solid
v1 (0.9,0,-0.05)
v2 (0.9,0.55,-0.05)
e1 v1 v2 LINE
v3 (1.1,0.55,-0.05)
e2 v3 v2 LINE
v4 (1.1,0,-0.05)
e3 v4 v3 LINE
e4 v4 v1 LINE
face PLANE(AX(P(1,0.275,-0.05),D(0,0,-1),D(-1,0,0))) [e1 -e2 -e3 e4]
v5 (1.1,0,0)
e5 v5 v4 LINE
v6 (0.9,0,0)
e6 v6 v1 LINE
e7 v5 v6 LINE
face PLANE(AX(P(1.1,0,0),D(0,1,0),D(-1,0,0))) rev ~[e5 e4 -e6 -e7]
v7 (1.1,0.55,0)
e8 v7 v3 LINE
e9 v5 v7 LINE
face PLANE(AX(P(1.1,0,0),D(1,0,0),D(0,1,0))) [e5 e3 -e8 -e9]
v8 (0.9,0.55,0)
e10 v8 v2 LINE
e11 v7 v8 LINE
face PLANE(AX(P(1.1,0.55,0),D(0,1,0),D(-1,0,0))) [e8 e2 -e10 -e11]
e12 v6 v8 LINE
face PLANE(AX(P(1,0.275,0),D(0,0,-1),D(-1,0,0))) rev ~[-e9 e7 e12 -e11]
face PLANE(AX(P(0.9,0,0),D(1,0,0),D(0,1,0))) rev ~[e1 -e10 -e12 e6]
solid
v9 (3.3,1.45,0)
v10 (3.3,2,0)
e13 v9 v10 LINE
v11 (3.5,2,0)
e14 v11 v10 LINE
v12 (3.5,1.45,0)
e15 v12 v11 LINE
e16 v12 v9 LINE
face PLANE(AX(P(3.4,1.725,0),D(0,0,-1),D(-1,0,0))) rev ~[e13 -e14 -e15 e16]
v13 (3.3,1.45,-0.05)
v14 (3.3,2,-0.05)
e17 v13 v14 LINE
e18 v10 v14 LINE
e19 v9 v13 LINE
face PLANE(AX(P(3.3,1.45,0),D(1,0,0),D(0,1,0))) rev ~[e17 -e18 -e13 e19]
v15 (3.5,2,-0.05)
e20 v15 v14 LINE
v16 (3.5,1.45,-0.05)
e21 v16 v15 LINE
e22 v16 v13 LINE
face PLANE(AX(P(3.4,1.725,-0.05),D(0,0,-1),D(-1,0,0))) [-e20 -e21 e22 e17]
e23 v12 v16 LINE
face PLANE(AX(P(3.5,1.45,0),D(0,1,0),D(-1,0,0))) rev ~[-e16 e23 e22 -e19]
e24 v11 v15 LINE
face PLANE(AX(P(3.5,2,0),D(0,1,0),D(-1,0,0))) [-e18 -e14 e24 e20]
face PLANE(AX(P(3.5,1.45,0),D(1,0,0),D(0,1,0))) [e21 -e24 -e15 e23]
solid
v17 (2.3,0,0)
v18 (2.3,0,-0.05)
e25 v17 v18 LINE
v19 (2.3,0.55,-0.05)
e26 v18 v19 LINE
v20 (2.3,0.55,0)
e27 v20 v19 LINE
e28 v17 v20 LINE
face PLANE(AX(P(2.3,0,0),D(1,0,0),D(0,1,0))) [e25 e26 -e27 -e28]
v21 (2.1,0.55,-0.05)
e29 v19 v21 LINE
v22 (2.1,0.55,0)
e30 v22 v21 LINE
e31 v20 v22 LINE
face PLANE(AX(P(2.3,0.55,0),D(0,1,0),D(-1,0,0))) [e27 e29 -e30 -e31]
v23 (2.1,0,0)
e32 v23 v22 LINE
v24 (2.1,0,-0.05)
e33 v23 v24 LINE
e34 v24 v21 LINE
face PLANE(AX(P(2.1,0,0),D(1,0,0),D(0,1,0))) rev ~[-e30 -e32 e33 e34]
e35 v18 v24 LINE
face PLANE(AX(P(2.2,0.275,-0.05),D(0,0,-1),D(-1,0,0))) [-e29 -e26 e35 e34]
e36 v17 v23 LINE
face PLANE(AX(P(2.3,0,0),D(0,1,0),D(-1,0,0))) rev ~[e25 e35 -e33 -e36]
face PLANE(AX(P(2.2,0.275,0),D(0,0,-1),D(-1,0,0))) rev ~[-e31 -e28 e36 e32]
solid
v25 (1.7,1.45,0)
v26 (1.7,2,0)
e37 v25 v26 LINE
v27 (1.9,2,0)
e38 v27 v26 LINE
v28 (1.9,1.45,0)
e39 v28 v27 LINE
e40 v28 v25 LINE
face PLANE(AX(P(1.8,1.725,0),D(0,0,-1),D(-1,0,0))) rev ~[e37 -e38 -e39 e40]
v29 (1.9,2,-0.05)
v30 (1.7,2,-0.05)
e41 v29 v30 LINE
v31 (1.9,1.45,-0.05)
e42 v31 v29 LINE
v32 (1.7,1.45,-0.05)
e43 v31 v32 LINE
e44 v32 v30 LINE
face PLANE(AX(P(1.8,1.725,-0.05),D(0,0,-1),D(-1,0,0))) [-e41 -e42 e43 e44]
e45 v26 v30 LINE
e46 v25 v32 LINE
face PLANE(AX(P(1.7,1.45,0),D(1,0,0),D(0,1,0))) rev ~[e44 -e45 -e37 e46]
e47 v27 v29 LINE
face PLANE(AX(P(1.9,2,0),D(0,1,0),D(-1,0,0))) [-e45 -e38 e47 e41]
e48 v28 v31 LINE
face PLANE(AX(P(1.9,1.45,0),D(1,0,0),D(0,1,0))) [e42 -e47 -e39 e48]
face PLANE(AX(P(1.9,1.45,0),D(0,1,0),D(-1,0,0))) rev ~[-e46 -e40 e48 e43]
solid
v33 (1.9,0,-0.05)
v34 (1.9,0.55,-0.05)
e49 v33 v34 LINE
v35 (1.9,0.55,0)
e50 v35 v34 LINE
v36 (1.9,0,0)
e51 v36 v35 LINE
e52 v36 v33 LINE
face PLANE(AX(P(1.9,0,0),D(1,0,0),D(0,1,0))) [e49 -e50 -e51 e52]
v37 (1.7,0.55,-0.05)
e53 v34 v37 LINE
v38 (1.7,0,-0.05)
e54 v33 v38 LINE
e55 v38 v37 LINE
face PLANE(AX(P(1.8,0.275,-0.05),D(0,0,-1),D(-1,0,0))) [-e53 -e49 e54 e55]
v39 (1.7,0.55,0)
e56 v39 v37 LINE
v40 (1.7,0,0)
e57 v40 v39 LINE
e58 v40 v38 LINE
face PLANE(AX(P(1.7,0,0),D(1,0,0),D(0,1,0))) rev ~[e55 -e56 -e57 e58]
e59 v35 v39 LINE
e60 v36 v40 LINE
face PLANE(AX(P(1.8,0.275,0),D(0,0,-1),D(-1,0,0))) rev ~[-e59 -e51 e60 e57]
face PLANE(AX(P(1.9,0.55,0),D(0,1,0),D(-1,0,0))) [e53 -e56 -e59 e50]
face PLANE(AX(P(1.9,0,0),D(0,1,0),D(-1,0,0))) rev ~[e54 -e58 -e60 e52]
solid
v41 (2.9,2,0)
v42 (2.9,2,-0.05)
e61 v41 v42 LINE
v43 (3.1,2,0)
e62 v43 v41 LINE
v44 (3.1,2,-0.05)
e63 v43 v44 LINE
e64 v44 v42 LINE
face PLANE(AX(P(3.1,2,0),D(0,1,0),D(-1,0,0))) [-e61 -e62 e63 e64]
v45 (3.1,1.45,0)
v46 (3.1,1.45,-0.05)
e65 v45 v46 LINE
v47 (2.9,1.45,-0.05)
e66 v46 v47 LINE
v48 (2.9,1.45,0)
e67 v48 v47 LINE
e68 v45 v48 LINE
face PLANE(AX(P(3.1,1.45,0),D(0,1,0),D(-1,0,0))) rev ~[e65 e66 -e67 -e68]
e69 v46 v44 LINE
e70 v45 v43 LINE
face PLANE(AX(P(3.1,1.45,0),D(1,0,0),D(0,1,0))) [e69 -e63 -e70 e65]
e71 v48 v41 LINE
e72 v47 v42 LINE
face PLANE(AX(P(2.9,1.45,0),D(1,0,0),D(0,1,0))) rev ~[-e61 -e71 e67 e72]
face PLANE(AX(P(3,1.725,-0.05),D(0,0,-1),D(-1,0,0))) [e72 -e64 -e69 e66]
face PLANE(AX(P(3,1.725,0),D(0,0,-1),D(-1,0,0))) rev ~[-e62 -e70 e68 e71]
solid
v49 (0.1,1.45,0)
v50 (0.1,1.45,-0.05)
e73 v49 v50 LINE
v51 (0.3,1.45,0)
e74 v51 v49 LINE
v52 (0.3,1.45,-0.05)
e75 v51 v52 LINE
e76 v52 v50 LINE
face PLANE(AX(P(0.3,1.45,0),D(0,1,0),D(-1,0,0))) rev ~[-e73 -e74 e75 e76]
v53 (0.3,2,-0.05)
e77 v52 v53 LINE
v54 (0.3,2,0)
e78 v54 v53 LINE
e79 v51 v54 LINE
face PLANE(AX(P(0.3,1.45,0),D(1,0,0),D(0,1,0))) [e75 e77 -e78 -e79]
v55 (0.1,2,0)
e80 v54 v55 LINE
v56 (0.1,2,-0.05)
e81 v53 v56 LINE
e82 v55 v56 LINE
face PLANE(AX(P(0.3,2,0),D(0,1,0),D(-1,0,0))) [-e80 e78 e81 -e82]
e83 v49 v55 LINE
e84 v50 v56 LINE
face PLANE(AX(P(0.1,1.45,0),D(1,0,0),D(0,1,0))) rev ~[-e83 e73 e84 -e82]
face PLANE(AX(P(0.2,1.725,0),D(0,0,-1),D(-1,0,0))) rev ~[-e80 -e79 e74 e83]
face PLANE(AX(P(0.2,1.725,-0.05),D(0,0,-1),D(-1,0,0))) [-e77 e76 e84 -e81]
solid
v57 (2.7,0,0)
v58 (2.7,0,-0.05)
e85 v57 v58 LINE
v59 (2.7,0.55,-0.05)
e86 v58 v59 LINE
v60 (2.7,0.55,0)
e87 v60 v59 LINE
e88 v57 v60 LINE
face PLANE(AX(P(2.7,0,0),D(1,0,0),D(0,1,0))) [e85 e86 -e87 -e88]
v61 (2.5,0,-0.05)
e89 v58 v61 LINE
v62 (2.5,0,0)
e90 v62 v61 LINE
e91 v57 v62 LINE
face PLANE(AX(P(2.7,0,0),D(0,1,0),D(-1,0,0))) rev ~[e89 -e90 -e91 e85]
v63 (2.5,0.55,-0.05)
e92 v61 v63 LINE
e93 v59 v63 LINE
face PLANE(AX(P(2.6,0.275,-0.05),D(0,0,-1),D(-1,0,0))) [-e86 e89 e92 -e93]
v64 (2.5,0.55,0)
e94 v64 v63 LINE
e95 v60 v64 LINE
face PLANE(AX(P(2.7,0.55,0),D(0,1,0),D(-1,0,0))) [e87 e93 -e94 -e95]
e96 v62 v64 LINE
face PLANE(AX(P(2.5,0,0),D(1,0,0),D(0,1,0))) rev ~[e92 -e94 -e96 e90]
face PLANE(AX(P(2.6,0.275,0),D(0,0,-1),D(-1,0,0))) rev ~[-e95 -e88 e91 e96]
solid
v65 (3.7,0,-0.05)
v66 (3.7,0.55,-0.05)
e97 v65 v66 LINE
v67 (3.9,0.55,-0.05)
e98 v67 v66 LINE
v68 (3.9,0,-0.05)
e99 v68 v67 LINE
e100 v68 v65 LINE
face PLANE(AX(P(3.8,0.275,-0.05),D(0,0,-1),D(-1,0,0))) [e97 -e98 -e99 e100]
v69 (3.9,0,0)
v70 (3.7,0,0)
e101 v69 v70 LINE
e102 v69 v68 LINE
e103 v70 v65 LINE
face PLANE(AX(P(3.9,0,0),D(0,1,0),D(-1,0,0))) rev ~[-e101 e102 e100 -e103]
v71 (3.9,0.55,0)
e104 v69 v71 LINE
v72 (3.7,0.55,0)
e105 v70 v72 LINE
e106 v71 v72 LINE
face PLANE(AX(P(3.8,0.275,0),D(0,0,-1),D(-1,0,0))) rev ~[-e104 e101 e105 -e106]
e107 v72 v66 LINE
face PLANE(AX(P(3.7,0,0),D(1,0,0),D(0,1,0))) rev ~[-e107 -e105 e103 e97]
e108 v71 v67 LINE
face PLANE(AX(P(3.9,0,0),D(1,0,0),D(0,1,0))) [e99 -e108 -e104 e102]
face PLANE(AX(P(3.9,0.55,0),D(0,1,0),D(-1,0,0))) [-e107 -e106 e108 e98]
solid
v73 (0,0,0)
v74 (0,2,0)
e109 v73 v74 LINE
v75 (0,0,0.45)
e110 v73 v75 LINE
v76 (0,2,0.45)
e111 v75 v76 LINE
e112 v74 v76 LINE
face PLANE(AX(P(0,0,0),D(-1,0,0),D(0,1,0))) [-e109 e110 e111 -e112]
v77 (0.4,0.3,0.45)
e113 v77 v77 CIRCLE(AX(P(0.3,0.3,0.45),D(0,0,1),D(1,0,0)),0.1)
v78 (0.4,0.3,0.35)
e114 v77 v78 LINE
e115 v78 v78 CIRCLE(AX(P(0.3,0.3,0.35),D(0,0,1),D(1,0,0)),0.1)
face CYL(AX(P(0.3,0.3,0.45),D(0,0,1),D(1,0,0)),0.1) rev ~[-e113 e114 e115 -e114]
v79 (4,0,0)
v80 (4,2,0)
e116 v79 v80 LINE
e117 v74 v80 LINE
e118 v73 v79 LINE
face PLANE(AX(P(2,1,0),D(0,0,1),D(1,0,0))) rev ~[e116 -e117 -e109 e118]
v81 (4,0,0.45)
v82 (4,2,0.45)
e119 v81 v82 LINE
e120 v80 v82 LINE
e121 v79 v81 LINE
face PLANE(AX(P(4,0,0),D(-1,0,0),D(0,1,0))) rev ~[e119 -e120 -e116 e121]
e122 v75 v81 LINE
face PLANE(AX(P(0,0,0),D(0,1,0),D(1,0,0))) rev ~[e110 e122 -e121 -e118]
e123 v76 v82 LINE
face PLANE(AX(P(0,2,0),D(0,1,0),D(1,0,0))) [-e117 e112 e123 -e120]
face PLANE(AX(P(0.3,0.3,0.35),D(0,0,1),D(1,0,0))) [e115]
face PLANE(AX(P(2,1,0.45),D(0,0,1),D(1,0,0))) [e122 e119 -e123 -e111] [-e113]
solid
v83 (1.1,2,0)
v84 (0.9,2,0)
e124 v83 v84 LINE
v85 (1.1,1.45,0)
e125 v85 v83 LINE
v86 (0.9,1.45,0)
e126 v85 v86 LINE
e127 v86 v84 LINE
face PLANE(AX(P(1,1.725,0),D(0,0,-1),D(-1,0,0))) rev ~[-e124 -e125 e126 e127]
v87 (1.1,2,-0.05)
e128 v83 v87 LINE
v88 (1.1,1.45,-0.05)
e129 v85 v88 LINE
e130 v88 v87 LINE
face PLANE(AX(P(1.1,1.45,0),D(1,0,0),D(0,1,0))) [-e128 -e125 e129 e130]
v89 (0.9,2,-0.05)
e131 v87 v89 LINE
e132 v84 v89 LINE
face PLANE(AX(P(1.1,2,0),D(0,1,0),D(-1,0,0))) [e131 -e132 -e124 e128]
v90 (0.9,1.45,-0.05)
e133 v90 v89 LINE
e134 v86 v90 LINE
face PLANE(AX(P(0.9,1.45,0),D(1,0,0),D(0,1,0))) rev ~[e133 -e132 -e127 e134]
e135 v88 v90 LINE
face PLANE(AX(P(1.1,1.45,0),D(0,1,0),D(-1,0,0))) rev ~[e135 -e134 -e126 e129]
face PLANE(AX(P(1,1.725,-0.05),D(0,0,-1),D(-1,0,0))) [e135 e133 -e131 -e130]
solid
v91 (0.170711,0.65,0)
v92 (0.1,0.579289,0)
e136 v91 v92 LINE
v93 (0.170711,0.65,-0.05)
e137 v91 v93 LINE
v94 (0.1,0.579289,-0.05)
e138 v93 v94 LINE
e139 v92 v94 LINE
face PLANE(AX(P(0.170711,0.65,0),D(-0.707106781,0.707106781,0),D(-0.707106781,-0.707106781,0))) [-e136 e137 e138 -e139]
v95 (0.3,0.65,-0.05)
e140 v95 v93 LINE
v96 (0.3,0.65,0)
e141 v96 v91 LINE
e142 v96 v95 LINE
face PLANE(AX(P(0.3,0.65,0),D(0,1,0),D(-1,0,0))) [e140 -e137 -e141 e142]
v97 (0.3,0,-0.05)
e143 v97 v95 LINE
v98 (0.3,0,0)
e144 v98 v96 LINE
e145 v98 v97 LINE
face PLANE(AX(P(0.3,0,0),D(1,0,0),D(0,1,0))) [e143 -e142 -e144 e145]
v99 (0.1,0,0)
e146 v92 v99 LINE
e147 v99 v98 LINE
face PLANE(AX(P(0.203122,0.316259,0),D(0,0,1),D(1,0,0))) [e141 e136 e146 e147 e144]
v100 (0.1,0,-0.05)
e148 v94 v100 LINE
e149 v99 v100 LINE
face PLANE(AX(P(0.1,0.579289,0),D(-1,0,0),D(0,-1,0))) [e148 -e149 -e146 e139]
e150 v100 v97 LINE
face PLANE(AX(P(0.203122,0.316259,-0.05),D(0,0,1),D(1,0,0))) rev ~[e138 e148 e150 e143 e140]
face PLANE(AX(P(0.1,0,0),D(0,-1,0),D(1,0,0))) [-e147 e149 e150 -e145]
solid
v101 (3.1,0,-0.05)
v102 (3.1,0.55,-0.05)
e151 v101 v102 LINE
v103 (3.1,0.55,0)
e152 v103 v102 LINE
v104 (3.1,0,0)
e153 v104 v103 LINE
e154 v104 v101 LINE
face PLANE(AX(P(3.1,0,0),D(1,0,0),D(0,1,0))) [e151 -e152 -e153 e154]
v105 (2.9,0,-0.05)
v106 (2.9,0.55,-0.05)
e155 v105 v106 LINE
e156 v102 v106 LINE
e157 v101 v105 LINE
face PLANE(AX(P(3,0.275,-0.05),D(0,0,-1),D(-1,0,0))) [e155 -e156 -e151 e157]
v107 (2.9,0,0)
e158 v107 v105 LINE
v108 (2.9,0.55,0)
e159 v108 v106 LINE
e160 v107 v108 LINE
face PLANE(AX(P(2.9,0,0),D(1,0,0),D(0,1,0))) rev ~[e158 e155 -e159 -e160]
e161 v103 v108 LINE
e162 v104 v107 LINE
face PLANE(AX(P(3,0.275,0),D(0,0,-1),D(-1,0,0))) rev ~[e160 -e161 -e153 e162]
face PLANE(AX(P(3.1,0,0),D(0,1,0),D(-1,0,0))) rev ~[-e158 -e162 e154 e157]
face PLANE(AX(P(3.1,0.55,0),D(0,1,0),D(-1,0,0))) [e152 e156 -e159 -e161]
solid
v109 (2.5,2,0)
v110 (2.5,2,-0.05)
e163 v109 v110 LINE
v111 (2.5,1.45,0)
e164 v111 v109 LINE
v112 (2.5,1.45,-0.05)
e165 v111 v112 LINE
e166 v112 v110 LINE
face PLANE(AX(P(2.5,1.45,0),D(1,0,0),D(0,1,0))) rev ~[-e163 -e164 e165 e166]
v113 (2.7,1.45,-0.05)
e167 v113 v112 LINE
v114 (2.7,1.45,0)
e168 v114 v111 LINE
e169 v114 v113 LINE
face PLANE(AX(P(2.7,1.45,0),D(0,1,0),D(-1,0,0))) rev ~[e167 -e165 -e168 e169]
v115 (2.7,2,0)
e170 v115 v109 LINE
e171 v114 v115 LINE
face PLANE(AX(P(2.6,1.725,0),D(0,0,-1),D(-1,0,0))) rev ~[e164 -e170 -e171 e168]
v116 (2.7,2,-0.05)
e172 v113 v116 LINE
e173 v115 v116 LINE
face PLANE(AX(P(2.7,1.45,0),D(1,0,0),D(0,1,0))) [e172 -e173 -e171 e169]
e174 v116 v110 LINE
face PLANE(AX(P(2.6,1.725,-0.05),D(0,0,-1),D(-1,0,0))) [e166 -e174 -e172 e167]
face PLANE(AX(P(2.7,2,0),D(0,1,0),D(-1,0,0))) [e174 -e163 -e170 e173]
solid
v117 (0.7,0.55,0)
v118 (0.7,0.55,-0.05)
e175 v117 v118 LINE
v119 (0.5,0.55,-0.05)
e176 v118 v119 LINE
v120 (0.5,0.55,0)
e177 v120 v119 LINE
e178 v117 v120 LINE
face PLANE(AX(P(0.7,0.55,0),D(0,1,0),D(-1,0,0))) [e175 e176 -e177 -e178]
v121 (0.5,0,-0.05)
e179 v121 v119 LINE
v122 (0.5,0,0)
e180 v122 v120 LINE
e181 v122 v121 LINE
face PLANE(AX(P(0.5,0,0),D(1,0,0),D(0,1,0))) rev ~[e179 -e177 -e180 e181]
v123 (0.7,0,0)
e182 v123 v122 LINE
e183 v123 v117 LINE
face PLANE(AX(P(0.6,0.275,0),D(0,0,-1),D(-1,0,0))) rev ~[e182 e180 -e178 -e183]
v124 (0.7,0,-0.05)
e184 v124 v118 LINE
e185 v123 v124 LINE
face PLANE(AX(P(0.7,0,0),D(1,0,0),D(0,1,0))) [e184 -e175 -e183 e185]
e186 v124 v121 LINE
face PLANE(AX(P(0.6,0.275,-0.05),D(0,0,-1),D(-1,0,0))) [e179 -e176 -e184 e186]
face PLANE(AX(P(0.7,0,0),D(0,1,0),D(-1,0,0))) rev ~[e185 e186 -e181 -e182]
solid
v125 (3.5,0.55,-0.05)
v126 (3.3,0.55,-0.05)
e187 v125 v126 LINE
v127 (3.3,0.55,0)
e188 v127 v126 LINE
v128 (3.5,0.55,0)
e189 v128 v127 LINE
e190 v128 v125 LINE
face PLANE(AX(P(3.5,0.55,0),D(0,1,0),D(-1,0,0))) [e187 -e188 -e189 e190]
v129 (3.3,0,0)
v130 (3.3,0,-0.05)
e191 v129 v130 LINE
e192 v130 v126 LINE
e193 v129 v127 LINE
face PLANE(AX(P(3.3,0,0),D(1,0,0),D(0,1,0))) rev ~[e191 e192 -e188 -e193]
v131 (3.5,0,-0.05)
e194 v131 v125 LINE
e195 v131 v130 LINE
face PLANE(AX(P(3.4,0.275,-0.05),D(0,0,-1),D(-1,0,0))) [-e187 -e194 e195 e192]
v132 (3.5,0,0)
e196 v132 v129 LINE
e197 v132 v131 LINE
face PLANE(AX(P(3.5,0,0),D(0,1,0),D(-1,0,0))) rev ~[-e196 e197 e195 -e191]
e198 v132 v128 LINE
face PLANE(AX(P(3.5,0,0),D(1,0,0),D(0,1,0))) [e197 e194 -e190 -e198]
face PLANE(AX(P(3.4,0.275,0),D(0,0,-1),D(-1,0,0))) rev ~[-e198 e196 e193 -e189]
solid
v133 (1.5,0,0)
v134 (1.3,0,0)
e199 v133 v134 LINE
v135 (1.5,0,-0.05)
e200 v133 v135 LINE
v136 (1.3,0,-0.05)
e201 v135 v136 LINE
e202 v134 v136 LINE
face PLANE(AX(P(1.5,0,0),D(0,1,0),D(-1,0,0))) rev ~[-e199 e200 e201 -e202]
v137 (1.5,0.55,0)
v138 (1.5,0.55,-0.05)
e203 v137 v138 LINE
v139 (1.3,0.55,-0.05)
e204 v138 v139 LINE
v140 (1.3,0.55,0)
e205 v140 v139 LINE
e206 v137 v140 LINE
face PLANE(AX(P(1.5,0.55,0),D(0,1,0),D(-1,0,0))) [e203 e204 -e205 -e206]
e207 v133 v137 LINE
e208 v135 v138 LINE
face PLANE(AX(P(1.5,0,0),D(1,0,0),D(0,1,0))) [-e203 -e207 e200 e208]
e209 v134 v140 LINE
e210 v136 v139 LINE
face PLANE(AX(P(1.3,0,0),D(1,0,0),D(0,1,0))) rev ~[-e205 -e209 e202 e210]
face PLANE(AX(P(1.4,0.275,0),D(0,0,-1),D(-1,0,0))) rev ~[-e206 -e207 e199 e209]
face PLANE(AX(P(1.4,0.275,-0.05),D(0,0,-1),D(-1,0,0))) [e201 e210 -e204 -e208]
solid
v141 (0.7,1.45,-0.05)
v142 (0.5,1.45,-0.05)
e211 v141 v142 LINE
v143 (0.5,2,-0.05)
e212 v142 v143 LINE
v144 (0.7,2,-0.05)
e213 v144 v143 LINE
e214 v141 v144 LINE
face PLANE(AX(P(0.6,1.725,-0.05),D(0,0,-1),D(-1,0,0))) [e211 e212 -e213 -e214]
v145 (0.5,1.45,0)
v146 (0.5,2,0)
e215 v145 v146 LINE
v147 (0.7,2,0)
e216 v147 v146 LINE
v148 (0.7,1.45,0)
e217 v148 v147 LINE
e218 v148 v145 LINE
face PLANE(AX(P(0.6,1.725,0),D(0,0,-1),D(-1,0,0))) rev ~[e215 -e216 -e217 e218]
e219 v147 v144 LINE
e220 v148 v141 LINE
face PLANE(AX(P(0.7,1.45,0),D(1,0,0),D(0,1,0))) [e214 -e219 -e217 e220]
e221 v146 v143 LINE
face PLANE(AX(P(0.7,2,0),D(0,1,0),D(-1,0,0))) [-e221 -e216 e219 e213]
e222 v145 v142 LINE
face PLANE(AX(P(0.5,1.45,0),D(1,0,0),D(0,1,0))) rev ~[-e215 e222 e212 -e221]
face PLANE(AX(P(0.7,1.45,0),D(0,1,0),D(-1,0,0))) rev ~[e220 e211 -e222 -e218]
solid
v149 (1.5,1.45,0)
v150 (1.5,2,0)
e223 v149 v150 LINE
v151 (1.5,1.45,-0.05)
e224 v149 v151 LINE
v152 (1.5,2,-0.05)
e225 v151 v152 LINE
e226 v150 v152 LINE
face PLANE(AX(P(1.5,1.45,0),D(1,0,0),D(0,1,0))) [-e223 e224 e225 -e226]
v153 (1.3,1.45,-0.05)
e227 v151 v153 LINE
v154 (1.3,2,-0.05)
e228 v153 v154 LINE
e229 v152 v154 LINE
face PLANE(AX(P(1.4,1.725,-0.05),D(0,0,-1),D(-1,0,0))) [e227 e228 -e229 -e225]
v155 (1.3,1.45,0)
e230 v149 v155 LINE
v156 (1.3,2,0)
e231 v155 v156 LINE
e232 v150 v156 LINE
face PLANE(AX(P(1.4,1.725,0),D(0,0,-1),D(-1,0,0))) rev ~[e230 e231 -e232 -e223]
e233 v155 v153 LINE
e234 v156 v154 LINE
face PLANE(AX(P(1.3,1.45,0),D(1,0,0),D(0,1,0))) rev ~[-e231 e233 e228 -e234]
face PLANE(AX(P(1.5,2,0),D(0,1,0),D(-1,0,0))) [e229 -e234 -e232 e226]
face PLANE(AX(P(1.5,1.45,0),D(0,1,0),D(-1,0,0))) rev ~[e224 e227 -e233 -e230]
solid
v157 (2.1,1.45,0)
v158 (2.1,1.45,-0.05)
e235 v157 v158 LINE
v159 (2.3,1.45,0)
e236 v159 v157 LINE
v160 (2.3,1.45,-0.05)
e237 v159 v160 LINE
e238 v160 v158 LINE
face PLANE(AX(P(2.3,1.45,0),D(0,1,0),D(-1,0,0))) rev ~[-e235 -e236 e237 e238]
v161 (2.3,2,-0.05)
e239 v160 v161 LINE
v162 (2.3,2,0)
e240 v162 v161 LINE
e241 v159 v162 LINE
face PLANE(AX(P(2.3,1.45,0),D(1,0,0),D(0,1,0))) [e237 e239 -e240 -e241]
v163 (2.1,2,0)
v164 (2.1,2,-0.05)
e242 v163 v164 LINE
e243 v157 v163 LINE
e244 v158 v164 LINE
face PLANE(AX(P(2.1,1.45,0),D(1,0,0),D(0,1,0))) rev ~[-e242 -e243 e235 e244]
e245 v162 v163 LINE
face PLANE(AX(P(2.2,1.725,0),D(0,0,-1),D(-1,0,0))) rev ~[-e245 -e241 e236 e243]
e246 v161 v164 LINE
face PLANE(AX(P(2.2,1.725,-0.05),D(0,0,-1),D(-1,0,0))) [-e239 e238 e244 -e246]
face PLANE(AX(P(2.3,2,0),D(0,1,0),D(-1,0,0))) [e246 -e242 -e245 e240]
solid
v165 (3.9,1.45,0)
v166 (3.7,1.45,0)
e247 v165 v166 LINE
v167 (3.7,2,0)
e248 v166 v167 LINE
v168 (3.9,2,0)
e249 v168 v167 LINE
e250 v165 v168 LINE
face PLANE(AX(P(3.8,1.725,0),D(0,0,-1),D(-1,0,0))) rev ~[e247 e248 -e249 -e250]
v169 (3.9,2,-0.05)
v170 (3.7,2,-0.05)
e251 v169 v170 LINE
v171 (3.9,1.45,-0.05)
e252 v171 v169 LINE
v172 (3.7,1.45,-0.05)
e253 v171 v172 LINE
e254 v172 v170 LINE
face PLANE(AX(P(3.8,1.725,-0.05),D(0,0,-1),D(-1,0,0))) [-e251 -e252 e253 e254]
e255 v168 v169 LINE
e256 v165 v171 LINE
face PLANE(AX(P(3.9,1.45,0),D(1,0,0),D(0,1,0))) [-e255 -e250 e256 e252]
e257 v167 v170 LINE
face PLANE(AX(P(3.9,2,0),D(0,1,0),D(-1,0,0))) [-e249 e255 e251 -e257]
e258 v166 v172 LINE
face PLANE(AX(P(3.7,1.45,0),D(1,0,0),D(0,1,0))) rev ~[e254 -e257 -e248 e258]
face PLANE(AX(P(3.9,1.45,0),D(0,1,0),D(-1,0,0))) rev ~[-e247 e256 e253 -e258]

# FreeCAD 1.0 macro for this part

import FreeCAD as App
import Part
import Sketcher
from FreeCAD import Vector
Q = App.Units.Quantity


def add_polygon(sketch, points):
    """Adds a closed chain of lines whose ends are joined by coincident constraints."""
    first, n = sketch.GeometryCount, len(points)
    for a, b in zip(points, points[1:] + points[:1]):
        sketch.addGeometry(Part.LineSegment(App.Vector(*a, 0), App.Vector(*b, 0)), False)
    for i in range(n):
        sketch.addConstraint(Sketcher.Constraint("Coincident", first + i, 2, first + (i + 1) % n, 1))

doc = App.newDocument("Part")
body = doc.addObject("PartDesign::Body", "Body")

sketch1 = doc.addObject("Sketcher::SketchObject", "Sketch")
body.addObject(sketch1)
sketch1.AttachmentSupport = (doc.XY_Plane, [""])
sketch1.MapMode = "FlatFace"
add_polygon(sketch1, [(0, 2), (0, 0), (4, 0), (4, 2)])
sketch1.addConstraint([
    Sketcher.Constraint("Vertical", 0),
    Sketcher.Constraint("Horizontal", 1),
    Sketcher.Constraint("Vertical", 2),
    Sketcher.Constraint("Horizontal", 3),
    Sketcher.Constraint("Coincident", 0, 2, -1, 1),
    Sketcher.Constraint("DistanceX", 1, 1, 1, 2, Q("4 mm")),
    Sketcher.Constraint("DistanceY", 0, 2, 0, 1, Q("2 mm")),
])
pad1 = doc.addObject("PartDesign::Pad", "Pad")
body.addObject(pad1)
pad1.Profile = sketch1
pad1.Length = 0.45

sketch2 = doc.addObject("Sketcher::SketchObject", "Sketch001")
body.addObject(sketch2)
sketch2.AttachmentSupport = (doc.XY_Plane, [""])
sketch2.MapMode = "FlatFace"
sketch2.AttachmentOffset = App.Placement(Vector(0, 0, 0.45), App.Rotation())
sketch2.addGeometry(Part.Circle(Vector(0.3, 0.3, 0), Vector(0, 0, 1), 0.1), False)
sketch2.addConstraint([
    Sketcher.Constraint("Diameter", 0, Q("0.2 mm")),
    Sketcher.Constraint("DistanceX", -1, 1, 0, 3, Q("0.3 mm")),
    Sketcher.Constraint("DistanceY", -1, 1, 0, 3, Q("0.3 mm")),
])
pocket1 = doc.addObject("PartDesign::Pocket", "Pocket")
body.addObject(pocket1)
pocket1.Profile = sketch2
pocket1.Length = 0.1
body2 = doc.addObject("PartDesign::Body", "Body001")

sketch3 = doc.addObject("Sketcher::SketchObject", "Sketch002")
body2.addObject(sketch3)
sketch3.AttachmentSupport = (doc.getObject("XY_Plane001"), [""])
sketch3.MapMode = "FlatFace"
add_polygon(sketch3, [(3.9, 2), (3.9, 1.45), (3.7, 1.45), (3.7, 2)])
sketch3.addConstraint([
    Sketcher.Constraint("Vertical", 0),
    Sketcher.Constraint("Horizontal", 1),
    Sketcher.Constraint("Vertical", 2),
    Sketcher.Constraint("Horizontal", 3),
    Sketcher.Constraint("DistanceX", 1, 2, 1, 1, Q("0.2 mm")),
    Sketcher.Constraint("DistanceY", -1, 1, 2, 2, Q("2 mm")),
    Sketcher.Constraint("DistanceY", 0, 2, 0, 1, Q("0.55 mm")),
    Sketcher.Constraint("DistanceX", -1, 1, 0, 2, Q("3.9 mm")),
])
pad2 = doc.addObject("PartDesign::Pad", "Pad001")
body2.addObject(pad2)
pad2.Profile = sketch3
pad2.Length = 0.05
pad2.Reversed = True
body3 = doc.addObject("PartDesign::Body", "Body002")

sketch4 = doc.addObject("Sketcher::SketchObject", "Sketch003")
body3.addObject(sketch4)
sketch4.AttachmentSupport = (doc.getObject("XY_Plane002"), [""])
sketch4.MapMode = "FlatFace"
add_polygon(sketch4, [(3.5, 2), (3.5, 1.45), (3.3, 1.45), (3.3, 2)])
sketch4.addConstraint([
    Sketcher.Constraint("Vertical", 0),
    Sketcher.Constraint("Horizontal", 1),
    Sketcher.Constraint("Vertical", 2),
    Sketcher.Constraint("Horizontal", 3),
    Sketcher.Constraint("DistanceX", 1, 2, 1, 1, Q("0.2 mm")),
    Sketcher.Constraint("DistanceY", -1, 1, 2, 2, Q("2 mm")),
    Sketcher.Constraint("DistanceY", 0, 2, 0, 1, Q("0.55 mm")),
    Sketcher.Constraint("DistanceX", -1, 1, 0, 2, Q("3.5 mm")),
])
pad3 = doc.addObject("PartDesign::Pad", "Pad002")
body3.addObject(pad3)
pad3.Profile = sketch4
pad3.Length = 0.05
pad3.Reversed = True
body4 = doc.addObject("PartDesign::Body", "Body003")

sketch5 = doc.addObject("Sketcher::SketchObject", "Sketch004")
body4.addObject(sketch5)
sketch5.AttachmentSupport = (doc.getObject("XY_Plane003"), [""])
sketch5.MapMode = "FlatFace"
add_polygon(sketch5, [(3.1, 2), (3.1, 1.45), (2.9, 1.45), (2.9, 2)])
sketch5.addConstraint([
    Sketcher.Constraint("Vertical", 0),
    Sketcher.Constraint("Horizontal", 1),
    Sketcher.Constraint("Vertical", 2),
    Sketcher.Constraint("Horizontal", 3),
    Sketcher.Constraint("DistanceX", 1, 2, 1, 1, Q("0.2 mm")),
    Sketcher.Constraint("DistanceY", -1, 1, 2, 2, Q("2 mm")),
    Sketcher.Constraint("DistanceY", 0, 2, 0, 1, Q("0.55 mm")),
    Sketcher.Constraint("DistanceX", -1, 1, 0, 2, Q("3.1 mm")),
])
pad4 = doc.addObject("PartDesign::Pad", "Pad003")
body4.addObject(pad4)
pad4.Profile = sketch5
pad4.Length = 0.05
pad4.Reversed = True
body5 = doc.addObject("PartDesign::Body", "Body004")

sketch6 = doc.addObject("Sketcher::SketchObject", "Sketch005")
body5.addObject(sketch6)
sketch6.AttachmentSupport = (doc.getObject("XY_Plane004"), [""])
sketch6.MapMode = "FlatFace"
add_polygon(sketch6, [(2.7, 2), (2.7, 1.45), (2.5, 1.45), (2.5, 2)])
sketch6.addConstraint([
    Sketcher.Constraint("Vertical", 0),
    Sketcher.Constraint("Horizontal", 1),
    Sketcher.Constraint("Vertical", 2),
    Sketcher.Constraint("Horizontal", 3),
    Sketcher.Constraint("DistanceX", 1, 2, 1, 1, Q("0.2 mm")),
    Sketcher.Constraint("DistanceY", -1, 1, 2, 2, Q("2 mm")),
    Sketcher.Constraint("DistanceY", 0, 2, 0, 1, Q("0.55 mm")),
    Sketcher.Constraint("DistanceX", -1, 1, 0, 2, Q("2.7 mm")),
])
pad5 = doc.addObject("PartDesign::Pad", "Pad004")
body5.addObject(pad5)
pad5.Profile = sketch6
pad5.Length = 0.05
pad5.Reversed = True
body6 = doc.addObject("PartDesign::Body", "Body005")

sketch7 = doc.addObject("Sketcher::SketchObject", "Sketch006")
body6.addObject(sketch7)
sketch7.AttachmentSupport = (doc.getObject("XY_Plane005"), [""])
sketch7.MapMode = "FlatFace"
add_polygon(sketch7, [(2.3, 2), (2.3, 1.45), (2.1, 1.45), (2.1, 2)])
sketch7.addConstraint([
    Sketcher.Constraint("Vertical", 0),
    Sketcher.Constraint("Horizontal", 1),
    Sketcher.Constraint("Vertical", 2),
    Sketcher.Constraint("Horizontal", 3),
    Sketcher.Constraint("DistanceX", 1, 2, 1, 1, Q("0.2 mm")),
    Sketcher.Constraint("DistanceY", -1, 1, 2, 2, Q("2 mm")),
    Sketcher.Constraint("DistanceY", 0, 2, 0, 1, Q("0.55 mm")),
    Sketcher.Constraint("DistanceX", -1, 1, 0, 2, Q("2.3 mm")),
])
pad6 = doc.addObject("PartDesign::Pad", "Pad005")
body6.addObject(pad6)
pad6.Profile = sketch7
pad6.Length = 0.05
pad6.Reversed = True
body7 = doc.addObject("PartDesign::Body", "Body006")

sketch8 = doc.addObject("Sketcher::SketchObject", "Sketch007")
body7.addObject(sketch8)
sketch8.AttachmentSupport = (doc.getObject("XY_Plane006"), [""])
sketch8.MapMode = "FlatFace"
add_polygon(sketch8, [(1.9, 2), (1.9, 1.45), (1.7, 1.45), (1.7, 2)])
sketch8.addConstraint([
    Sketcher.Constraint("Vertical", 0),
    Sketcher.Constraint("Horizontal", 1),
    Sketcher.Constraint("Vertical", 2),
    Sketcher.Constraint("Horizontal", 3),
    Sketcher.Constraint("DistanceX", 1, 2, 1, 1, Q("0.2 mm")),
    Sketcher.Constraint("DistanceY", -1, 1, 2, 2, Q("2 mm")),
    Sketcher.Constraint("DistanceY", 0, 2, 0, 1, Q("0.55 mm")),
    Sketcher.Constraint("DistanceX", -1, 1, 0, 2, Q("1.9 mm")),
])
pad7 = doc.addObject("PartDesign::Pad", "Pad006")
body7.addObject(pad7)
pad7.Profile = sketch8
pad7.Length = 0.05
pad7.Reversed = True
body8 = doc.addObject("PartDesign::Body", "Body007")

sketch9 = doc.addObject("Sketcher::SketchObject", "Sketch008")
body8.addObject(sketch9)
sketch9.AttachmentSupport = (doc.getObject("XY_Plane007"), [""])
sketch9.MapMode = "FlatFace"
add_polygon(sketch9, [(1.5, 2), (1.5, 1.45), (1.3, 1.45), (1.3, 2)])
sketch9.addConstraint([
    Sketcher.Constraint("Vertical", 0),
    Sketcher.Constraint("Horizontal", 1),
    Sketcher.Constraint("Vertical", 2),
    Sketcher.Constraint("Horizontal", 3),
    Sketcher.Constraint("DistanceX", 1, 2, 1, 1, Q("0.2 mm")),
    Sketcher.Constraint("DistanceY", -1, 1, 2, 2, Q("2 mm")),
    Sketcher.Constraint("DistanceY", 0, 2, 0, 1, Q("0.55 mm")),
    Sketcher.Constraint("DistanceX", -1, 1, 0, 2, Q("1.5 mm")),
])
pad8 = doc.addObject("PartDesign::Pad", "Pad007")
body8.addObject(pad8)
pad8.Profile = sketch9
pad8.Length = 0.05
pad8.Reversed = True
body9 = doc.addObject("PartDesign::Body", "Body008")

sketch10 = doc.addObject("Sketcher::SketchObject", "Sketch009")
body9.addObject(sketch10)
sketch10.AttachmentSupport = (doc.getObject("XY_Plane008"), [""])
sketch10.MapMode = "FlatFace"
add_polygon(sketch10, [(1.1, 2), (1.1, 1.45), (0.9, 1.45), (0.9, 2)])
sketch10.addConstraint([
    Sketcher.Constraint("Vertical", 0),
    Sketcher.Constraint("Horizontal", 1),
    Sketcher.Constraint("Vertical", 2),
    Sketcher.Constraint("Horizontal", 3),
    Sketcher.Constraint("DistanceX", 1, 2, 1, 1, Q("0.2 mm")),
    Sketcher.Constraint("DistanceY", -1, 1, 2, 2, Q("2 mm")),
    Sketcher.Constraint("DistanceY", 0, 2, 0, 1, Q("0.55 mm")),
    Sketcher.Constraint("DistanceX", -1, 1, 0, 2, Q("1.1 mm")),
])
pad9 = doc.addObject("PartDesign::Pad", "Pad008")
body9.addObject(pad9)
pad9.Profile = sketch10
pad9.Length = 0.05
pad9.Reversed = True
body10 = doc.addObject("PartDesign::Body", "Body009")

sketch11 = doc.addObject("Sketcher::SketchObject", "Sketch010")
body10.addObject(sketch11)
sketch11.AttachmentSupport = (doc.getObject("XY_Plane009"), [""])
sketch11.MapMode = "FlatFace"
add_polygon(sketch11, [(0.7, 2), (0.7, 1.45), (0.5, 1.45), (0.5, 2)])
sketch11.addConstraint([
    Sketcher.Constraint("Vertical", 0),
    Sketcher.Constraint("Horizontal", 1),
    Sketcher.Constraint("Vertical", 2),
    Sketcher.Constraint("Horizontal", 3),
    Sketcher.Constraint("DistanceX", 1, 2, 1, 1, Q("0.2 mm")),
    Sketcher.Constraint("DistanceY", -1, 1, 2, 2, Q("2 mm")),
    Sketcher.Constraint("DistanceY", 0, 2, 0, 1, Q("0.55 mm")),
    Sketcher.Constraint("DistanceX", -1, 1, 0, 2, Q("0.7 mm")),
])
pad10 = doc.addObject("PartDesign::Pad", "Pad009")
body10.addObject(pad10)
pad10.Profile = sketch11
pad10.Length = 0.05
pad10.Reversed = True
body11 = doc.addObject("PartDesign::Body", "Body010")

sketch12 = doc.addObject("Sketcher::SketchObject", "Sketch011")
body11.addObject(sketch12)
sketch12.AttachmentSupport = (doc.getObject("XY_Plane010"), [""])
sketch12.MapMode = "FlatFace"
add_polygon(sketch12, [(0.3, 2), (0.3, 1.45), (0.1, 1.45), (0.1, 2)])
sketch12.addConstraint([
    Sketcher.Constraint("Vertical", 0),
    Sketcher.Constraint("Horizontal", 1),
    Sketcher.Constraint("Vertical", 2),
    Sketcher.Constraint("Horizontal", 3),
    Sketcher.Constraint("DistanceX", 1, 2, 1, 1, Q("0.2 mm")),
    Sketcher.Constraint("DistanceY", -1, 1, 2, 2, Q("2 mm")),
    Sketcher.Constraint("DistanceY", 0, 2, 0, 1, Q("0.55 mm")),
    Sketcher.Constraint("DistanceX", -1, 1, 0, 2, Q("0.3 mm")),
])
pad11 = doc.addObject("PartDesign::Pad", "Pad010")
body11.addObject(pad11)
pad11.Profile = sketch12
pad11.Length = 0.05
pad11.Reversed = True
body12 = doc.addObject("PartDesign::Body", "Body011")

sketch13 = doc.addObject("Sketcher::SketchObject", "Sketch012")
body12.addObject(sketch13)
sketch13.AttachmentSupport = (doc.getObject("XY_Plane011"), [""])
sketch13.MapMode = "FlatFace"
add_polygon(sketch13, [(0.3, 0.65), (0.3, 0), (0.1, 0), (0.1, 0.58), (0.17, 0.65)])
sketch13.addConstraint([
    Sketcher.Constraint("Vertical", 0),
    Sketcher.Constraint("Horizontal", 1),
    Sketcher.Constraint("Vertical", 2),
    Sketcher.Constraint("Horizontal", 4),
    Sketcher.Constraint("PointOnObject", 0, 2, -1),
    Sketcher.Constraint("Angle", 3, Q("45 deg")),
    Sketcher.Constraint("DistanceX", 1, 2, 1, 1, Q("0.2 mm")),
    Sketcher.Constraint("Distance", 3, Q("0.1 mm")),
    Sketcher.Constraint("DistanceY", 0, 2, 0, 1, Q("0.65 mm")),
    Sketcher.Constraint("DistanceX", -1, 1, 0, 2, Q("0.3 mm")),
])
pad12 = doc.addObject("PartDesign::Pad", "Pad011")
body12.addObject(pad12)
pad12.Profile = sketch13
pad12.Length = 0.05
pad12.Reversed = True
body13 = doc.addObject("PartDesign::Body", "Body012")

sketch14 = doc.addObject("Sketcher::SketchObject", "Sketch013")
body13.addObject(sketch14)
sketch14.AttachmentSupport = (doc.getObject("XY_Plane012"), [""])
sketch14.MapMode = "FlatFace"
add_polygon(sketch14, [(0.7, 0.55), (0.7, 0), (0.5, 0), (0.5, 0.55)])
sketch14.addConstraint([
    Sketcher.Constraint("Vertical", 0),
    Sketcher.Constraint("Horizontal", 1),
    Sketcher.Constraint("Vertical", 2),
    Sketcher.Constraint("Horizontal", 3),
    Sketcher.Constraint("PointOnObject", 0, 2, -1),
    Sketcher.Constraint("DistanceX", 1, 2, 1, 1, Q("0.2 mm")),
    Sketcher.Constraint("DistanceY", 0, 2, 0, 1, Q("0.55 mm")),
    Sketcher.Constraint("DistanceX", -1, 1, 0, 2, Q("0.7 mm")),
])
pad13 = doc.addObject("PartDesign::Pad", "Pad012")
body13.addObject(pad13)
pad13.Profile = sketch14
pad13.Length = 0.05
pad13.Reversed = True
body14 = doc.addObject("PartDesign::Body", "Body013")

sketch15 = doc.addObject("Sketcher::SketchObject", "Sketch014")
body14.addObject(sketch15)
sketch15.AttachmentSupport = (doc.getObject("XY_Plane013"), [""])
sketch15.MapMode = "FlatFace"
add_polygon(sketch15, [(1.1, 0.55), (1.1, 0), (0.9, 0), (0.9, 0.55)])
sketch15.addConstraint([
    Sketcher.Constraint("Vertical", 0),
    Sketcher.Constraint("Horizontal", 1),
    Sketcher.Constraint("Vertical", 2),
    Sketcher.Constraint("Horizontal", 3),
    Sketcher.Constraint("PointOnObject", 0, 2, -1),
    Sketcher.Constraint("DistanceX", 1, 2, 1, 1, Q("0.2 mm")),
    Sketcher.Constraint("DistanceY", 0, 2, 0, 1, Q("0.55 mm")),
    Sketcher.Constraint("DistanceX", -1, 1, 0, 2, Q("1.1 mm")),
])
pad14 = doc.addObject("PartDesign::Pad", "Pad013")
body14.addObject(pad14)
pad14.Profile = sketch15
pad14.Length = 0.05
pad14.Reversed = True
body15 = doc.addObject("PartDesign::Body", "Body014")

sketch16 = doc.addObject("Sketcher::SketchObject", "Sketch015")
body15.addObject(sketch16)
sketch16.AttachmentSupport = (doc.getObject("XY_Plane014"), [""])
sketch16.MapMode = "FlatFace"
add_polygon(sketch16, [(1.5, 0.55), (1.5, 0), (1.3, 0), (1.3, 0.55)])
sketch16.addConstraint([
    Sketcher.Constraint("Vertical", 0),
    Sketcher.Constraint("Horizontal", 1),
    Sketcher.Constraint("Vertical", 2),
    Sketcher.Constraint("Horizontal", 3),
    Sketcher.Constraint("PointOnObject", 0, 2, -1),
    Sketcher.Constraint("DistanceX", 1, 2, 1, 1, Q("0.2 mm")),
    Sketcher.Constraint("DistanceY", 0, 2, 0, 1, Q("0.55 mm")),
    Sketcher.Constraint("DistanceX", -1, 1, 0, 2, Q("1.5 mm")),
])
pad15 = doc.addObject("PartDesign::Pad", "Pad014")
body15.addObject(pad15)
pad15.Profile = sketch16
pad15.Length = 0.05
pad15.Reversed = True
body16 = doc.addObject("PartDesign::Body", "Body015")

sketch17 = doc.addObject("Sketcher::SketchObject", "Sketch016")
body16.addObject(sketch17)
sketch17.AttachmentSupport = (doc.getObject("XY_Plane015"), [""])
sketch17.MapMode = "FlatFace"
add_polygon(sketch17, [(1.9, 0.55), (1.9, 0), (1.7, 0), (1.7, 0.55)])
sketch17.addConstraint([
    Sketcher.Constraint("Vertical", 0),
    Sketcher.Constraint("Horizontal", 1),
    Sketcher.Constraint("Vertical", 2),
    Sketcher.Constraint("Horizontal", 3),
    Sketcher.Constraint("PointOnObject", 0, 2, -1),
    Sketcher.Constraint("DistanceX", 1, 2, 1, 1, Q("0.2 mm")),
    Sketcher.Constraint("DistanceY", 0, 2, 0, 1, Q("0.55 mm")),
    Sketcher.Constraint("DistanceX", -1, 1, 0, 2, Q("1.9 mm")),
])
pad16 = doc.addObject("PartDesign::Pad", "Pad015")
body16.addObject(pad16)
pad16.Profile = sketch17
pad16.Length = 0.05
pad16.Reversed = True
body17 = doc.addObject("PartDesign::Body", "Body016")

sketch18 = doc.addObject("Sketcher::SketchObject", "Sketch017")
body17.addObject(sketch18)
sketch18.AttachmentSupport = (doc.getObject("XY_Plane016"), [""])
sketch18.MapMode = "FlatFace"
add_polygon(sketch18, [(2.3, 0.55), (2.3, 0), (2.1, 0), (2.1, 0.55)])
sketch18.addConstraint([
    Sketcher.Constraint("Vertical", 0),
    Sketcher.Constraint("Horizontal", 1),
    Sketcher.Constraint("Vertical", 2),
    Sketcher.Constraint("Horizontal", 3),
    Sketcher.Constraint("PointOnObject", 0, 2, -1),
    Sketcher.Constraint("DistanceX", 1, 2, 1, 1, Q("0.2 mm")),
    Sketcher.Constraint("DistanceY", 0, 2, 0, 1, Q("0.55 mm")),
    Sketcher.Constraint("DistanceX", -1, 1, 0, 2, Q("2.3 mm")),
])
pad17 = doc.addObject("PartDesign::Pad", "Pad016")
body17.addObject(pad17)
pad17.Profile = sketch18
pad17.Length = 0.05
pad17.Reversed = True
body18 = doc.addObject("PartDesign::Body", "Body017")

sketch19 = doc.addObject("Sketcher::SketchObject", "Sketch018")
body18.addObject(sketch19)
sketch19.AttachmentSupport = (doc.getObject("XY_Plane017"), [""])
sketch19.MapMode = "FlatFace"
add_polygon(sketch19, [(2.7, 0.55), (2.7, 0), (2.5, 0), (2.5, 0.55)])
sketch19.addConstraint([
    Sketcher.Constraint("Vertical", 0),
    Sketcher.Constraint("Horizontal", 1),
    Sketcher.Constraint("Vertical", 2),
    Sketcher.Constraint("Horizontal", 3),
    Sketcher.Constraint("PointOnObject", 0, 2, -1),
    Sketcher.Constraint("DistanceX", 1, 2, 1, 1, Q("0.2 mm")),
    Sketcher.Constraint("DistanceY", 0, 2, 0, 1, Q("0.55 mm")),
    Sketcher.Constraint("DistanceX", -1, 1, 0, 2, Q("2.7 mm")),
])
pad18 = doc.addObject("PartDesign::Pad", "Pad017")
body18.addObject(pad18)
pad18.Profile = sketch19
pad18.Length = 0.05
pad18.Reversed = True
body19 = doc.addObject("PartDesign::Body", "Body018")

sketch20 = doc.addObject("Sketcher::SketchObject", "Sketch019")
body19.addObject(sketch20)
sketch20.AttachmentSupport = (doc.getObject("XY_Plane018"), [""])
sketch20.MapMode = "FlatFace"
add_polygon(sketch20, [(3.1, 0.55), (3.1, 0), (2.9, 0), (2.9, 0.55)])
sketch20.addConstraint([
    Sketcher.Constraint("Vertical", 0),
    Sketcher.Constraint("Horizontal", 1),
    Sketcher.Constraint("Vertical", 2),
    Sketcher.Constraint("Horizontal", 3),
    Sketcher.Constraint("PointOnObject", 0, 2, -1),
    Sketcher.Constraint("DistanceX", 1, 2, 1, 1, Q("0.2 mm")),
    Sketcher.Constraint("DistanceY", 0, 2, 0, 1, Q("0.55 mm")),
    Sketcher.Constraint("DistanceX", -1, 1, 0, 2, Q("3.1 mm")),
])
pad19 = doc.addObject("PartDesign::Pad", "Pad018")
body19.addObject(pad19)
pad19.Profile = sketch20
pad19.Length = 0.05
pad19.Reversed = True
body20 = doc.addObject("PartDesign::Body", "Body019")

sketch21 = doc.addObject("Sketcher::SketchObject", "Sketch020")
body20.addObject(sketch21)
sketch21.AttachmentSupport = (doc.getObject("XY_Plane019"), [""])
sketch21.MapMode = "FlatFace"
add_polygon(sketch21, [(3.5, 0.55), (3.5, 0), (3.3, 0), (3.3, 0.55)])
sketch21.addConstraint([
    Sketcher.Constraint("Vertical", 0),
    Sketcher.Constraint("Horizontal", 1),
    Sketcher.Constraint("Vertical", 2),
    Sketcher.Constraint("Horizontal", 3),
    Sketcher.Constraint("PointOnObject", 0, 2, -1),
    Sketcher.Constraint("DistanceX", 1, 2, 1, 1, Q("0.2 mm")),
    Sketcher.Constraint("DistanceY", 0, 2, 0, 1, Q("0.55 mm")),
    Sketcher.Constraint("DistanceX", -1, 1, 0, 2, Q("3.5 mm")),
])
pad20 = doc.addObject("PartDesign::Pad", "Pad019")
body20.addObject(pad20)
pad20.Profile = sketch21
pad20.Length = 0.05
pad20.Reversed = True
body21 = doc.addObject("PartDesign::Body", "Body020")

sketch22 = doc.addObject("Sketcher::SketchObject", "Sketch021")
body21.addObject(sketch22)
sketch22.AttachmentSupport = (doc.getObject("XY_Plane020"), [""])
sketch22.MapMode = "FlatFace"
add_polygon(sketch22, [(3.9, 0.55), (3.9, 0), (3.7, 0), (3.7, 0.55)])
sketch22.addConstraint([
    Sketcher.Constraint("Vertical", 0),
    Sketcher.Constraint("Horizontal", 1),
    Sketcher.Constraint("Vertical", 2),
    Sketcher.Constraint("Horizontal", 3),
    Sketcher.Constraint("PointOnObject", 0, 2, -1),
    Sketcher.Constraint("DistanceX", 1, 2, 1, 1, Q("0.2 mm")),
    Sketcher.Constraint("DistanceY", 0, 2, 0, 1, Q("0.55 mm")),
    Sketcher.Constraint("DistanceX", -1, 1, 0, 2, Q("3.9 mm")),
])
pad21 = doc.addObject("PartDesign::Pad", "Pad020")
body21.addObject(pad21)
pad21.Profile = sketch22
pad21.Length = 0.05
pad21.Reversed = True

doc.recompute()
